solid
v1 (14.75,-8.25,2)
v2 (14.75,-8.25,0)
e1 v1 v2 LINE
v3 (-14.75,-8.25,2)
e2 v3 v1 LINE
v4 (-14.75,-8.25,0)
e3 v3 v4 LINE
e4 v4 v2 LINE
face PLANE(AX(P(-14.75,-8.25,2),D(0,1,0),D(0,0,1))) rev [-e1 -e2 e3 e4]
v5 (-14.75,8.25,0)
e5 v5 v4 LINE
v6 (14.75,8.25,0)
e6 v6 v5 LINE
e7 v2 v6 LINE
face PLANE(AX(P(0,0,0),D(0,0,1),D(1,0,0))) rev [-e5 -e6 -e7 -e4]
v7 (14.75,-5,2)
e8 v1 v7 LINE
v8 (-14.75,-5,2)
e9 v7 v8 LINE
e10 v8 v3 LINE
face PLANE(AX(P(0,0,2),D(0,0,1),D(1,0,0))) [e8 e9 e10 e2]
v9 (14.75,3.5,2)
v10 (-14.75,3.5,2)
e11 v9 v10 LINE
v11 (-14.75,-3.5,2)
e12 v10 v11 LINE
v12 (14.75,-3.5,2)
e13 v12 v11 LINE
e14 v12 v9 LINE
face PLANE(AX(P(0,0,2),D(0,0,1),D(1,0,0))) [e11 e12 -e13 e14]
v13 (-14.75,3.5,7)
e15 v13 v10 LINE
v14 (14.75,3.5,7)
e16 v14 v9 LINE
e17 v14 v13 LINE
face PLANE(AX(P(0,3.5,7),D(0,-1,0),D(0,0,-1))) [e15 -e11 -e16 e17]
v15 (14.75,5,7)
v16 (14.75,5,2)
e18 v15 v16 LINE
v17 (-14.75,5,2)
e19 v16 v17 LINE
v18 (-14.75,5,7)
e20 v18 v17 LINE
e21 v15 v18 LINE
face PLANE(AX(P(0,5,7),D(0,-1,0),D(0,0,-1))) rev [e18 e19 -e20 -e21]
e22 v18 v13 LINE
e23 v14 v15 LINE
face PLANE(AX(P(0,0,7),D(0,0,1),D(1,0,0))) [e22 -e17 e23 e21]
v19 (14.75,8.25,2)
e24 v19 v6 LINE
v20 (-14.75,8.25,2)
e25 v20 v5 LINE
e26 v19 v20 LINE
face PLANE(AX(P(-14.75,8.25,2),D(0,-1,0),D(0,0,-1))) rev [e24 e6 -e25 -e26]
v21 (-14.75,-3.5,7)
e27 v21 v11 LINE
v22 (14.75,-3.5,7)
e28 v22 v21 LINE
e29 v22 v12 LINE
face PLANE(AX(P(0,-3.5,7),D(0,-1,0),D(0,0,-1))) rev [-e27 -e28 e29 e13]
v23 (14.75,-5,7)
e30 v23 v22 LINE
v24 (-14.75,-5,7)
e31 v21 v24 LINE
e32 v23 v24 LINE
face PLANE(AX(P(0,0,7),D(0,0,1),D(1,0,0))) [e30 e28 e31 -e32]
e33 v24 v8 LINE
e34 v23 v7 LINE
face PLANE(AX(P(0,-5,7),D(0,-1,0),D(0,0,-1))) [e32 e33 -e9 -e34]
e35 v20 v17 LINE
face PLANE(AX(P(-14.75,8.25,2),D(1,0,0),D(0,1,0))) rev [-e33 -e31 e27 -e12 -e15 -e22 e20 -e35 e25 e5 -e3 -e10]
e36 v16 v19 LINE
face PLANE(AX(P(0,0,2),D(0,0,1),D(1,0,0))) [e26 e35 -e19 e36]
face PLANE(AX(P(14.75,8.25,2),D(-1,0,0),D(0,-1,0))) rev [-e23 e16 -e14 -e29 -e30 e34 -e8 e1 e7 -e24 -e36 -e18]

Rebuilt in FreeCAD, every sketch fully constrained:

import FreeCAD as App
import Part
import Sketcher
from FreeCAD import Vector
Q = App.Units.Quantity


def add_polygon(sketch, points):
    """Adds a closed chain of lines whose ends are joined by coincident constraints."""
    first, n = sketch.GeometryCount, len(points)
    for a, b in zip(points, points[1:] + points[:1]):
        sketch.addGeometry(Part.LineSegment(App.Vector(*a, 0), App.Vector(*b, 0)), False)
    for i in range(n):
        sketch.addConstraint(Sketcher.Constraint("Coincident", first + i, 2, first + (i + 1) % n, 1))

doc = App.newDocument("Part")
body = doc.addObject("PartDesign::Body", "Body")

# Sketch on XY plane
sketch1 = body.newObject("Sketcher::SketchObject", "Sketch")
sketch1.AttachmentSupport = (doc.getObject("XY_Plane"), [""])
sketch1.MapMode = "FlatFace"
add_polygon(sketch1, [(-14.75, 8.25), (-14.75, -8.25), (14.75, -8.25), (14.75, 8.25)])  # lines 0-3
sketch1.addConstraint(Sketcher.Constraint("Vertical", 0))
sketch1.addConstraint(Sketcher.Constraint("Horizontal", 1))
sketch1.addConstraint(Sketcher.Constraint("Vertical", 2))
sketch1.addConstraint(Sketcher.Constraint("Horizontal", 3))
sketch1.addConstraint(Sketcher.Constraint("Symmetric", 0, 2, 2, 2, -1, 1))
sketch1.addConstraint(Sketcher.Constraint("DistanceX", 1, 1, 1, 2, Q("29.5 mm")))
sketch1.addConstraint(Sketcher.Constraint("DistanceY", 0, 2, 0, 1, Q("16.5 mm")))
pad1 = body.newObject("PartDesign::Pad", "Pad")
pad1.Profile = sketch1
pad1.Length = 2

# Sketch on XY plane
sketch2 = body.newObject("Sketcher::SketchObject", "Sketch001")
sketch2.AttachmentSupport = (doc.getObject("XY_Plane"), [""])
sketch2.MapMode = "FlatFace"
sketch2.AttachmentOffset = App.Placement(Vector(0, 0, 2), App.Rotation())
add_polygon(sketch2, [(-14.75, 5), (-14.75, 3.5), (14.75, 3.5), (14.75, 5)])  # lines 0-3
add_polygon(sketch2, [(-14.75, -3.5), (-14.75, -5), (14.75, -5), (14.75, -3.5)])  # lines 4-7
sketch2.addConstraint(Sketcher.Constraint("Vertical", 0))
sketch2.addConstraint(Sketcher.Constraint("Horizontal", 1))
sketch2.addConstraint(Sketcher.Constraint("Vertical", 2))
sketch2.addConstraint(Sketcher.Constraint("Horizontal", 3))
sketch2.addConstraint(Sketcher.Constraint("Vertical", 4))
sketch2.addConstraint(Sketcher.Constraint("Horizontal", 5))
sketch2.addConstraint(Sketcher.Constraint("Vertical", 6))
sketch2.addConstraint(Sketcher.Constraint("Horizontal", 7))
sketch2.addConstraint(Sketcher.Constraint("Symmetric", 2, 2, 4, 2, -1, 1))
sketch2.addConstraint(Sketcher.Constraint("Symmetric", 0, 2, 6, 2, -1, 1))
sketch2.addConstraint(Sketcher.Constraint("Vertical", 3, 2, 4, 2))
sketch2.addConstraint(Sketcher.Constraint("DistanceX", 1, 1, 1, 2, Q("29.5 mm")))
sketch2.addConstraint(Sketcher.Constraint("DistanceY", 0, 2, 0, 1, Q("1.5 mm")))
sketch2.addConstraint(Sketcher.Constraint("DistanceY", -1, 1, 2, 2, Q("5 mm")))
pad2 = body.newObject("PartDesign::Pad", "Pad001")
pad2.Profile = sketch2
pad2.Length = 5

doc.recompute()
